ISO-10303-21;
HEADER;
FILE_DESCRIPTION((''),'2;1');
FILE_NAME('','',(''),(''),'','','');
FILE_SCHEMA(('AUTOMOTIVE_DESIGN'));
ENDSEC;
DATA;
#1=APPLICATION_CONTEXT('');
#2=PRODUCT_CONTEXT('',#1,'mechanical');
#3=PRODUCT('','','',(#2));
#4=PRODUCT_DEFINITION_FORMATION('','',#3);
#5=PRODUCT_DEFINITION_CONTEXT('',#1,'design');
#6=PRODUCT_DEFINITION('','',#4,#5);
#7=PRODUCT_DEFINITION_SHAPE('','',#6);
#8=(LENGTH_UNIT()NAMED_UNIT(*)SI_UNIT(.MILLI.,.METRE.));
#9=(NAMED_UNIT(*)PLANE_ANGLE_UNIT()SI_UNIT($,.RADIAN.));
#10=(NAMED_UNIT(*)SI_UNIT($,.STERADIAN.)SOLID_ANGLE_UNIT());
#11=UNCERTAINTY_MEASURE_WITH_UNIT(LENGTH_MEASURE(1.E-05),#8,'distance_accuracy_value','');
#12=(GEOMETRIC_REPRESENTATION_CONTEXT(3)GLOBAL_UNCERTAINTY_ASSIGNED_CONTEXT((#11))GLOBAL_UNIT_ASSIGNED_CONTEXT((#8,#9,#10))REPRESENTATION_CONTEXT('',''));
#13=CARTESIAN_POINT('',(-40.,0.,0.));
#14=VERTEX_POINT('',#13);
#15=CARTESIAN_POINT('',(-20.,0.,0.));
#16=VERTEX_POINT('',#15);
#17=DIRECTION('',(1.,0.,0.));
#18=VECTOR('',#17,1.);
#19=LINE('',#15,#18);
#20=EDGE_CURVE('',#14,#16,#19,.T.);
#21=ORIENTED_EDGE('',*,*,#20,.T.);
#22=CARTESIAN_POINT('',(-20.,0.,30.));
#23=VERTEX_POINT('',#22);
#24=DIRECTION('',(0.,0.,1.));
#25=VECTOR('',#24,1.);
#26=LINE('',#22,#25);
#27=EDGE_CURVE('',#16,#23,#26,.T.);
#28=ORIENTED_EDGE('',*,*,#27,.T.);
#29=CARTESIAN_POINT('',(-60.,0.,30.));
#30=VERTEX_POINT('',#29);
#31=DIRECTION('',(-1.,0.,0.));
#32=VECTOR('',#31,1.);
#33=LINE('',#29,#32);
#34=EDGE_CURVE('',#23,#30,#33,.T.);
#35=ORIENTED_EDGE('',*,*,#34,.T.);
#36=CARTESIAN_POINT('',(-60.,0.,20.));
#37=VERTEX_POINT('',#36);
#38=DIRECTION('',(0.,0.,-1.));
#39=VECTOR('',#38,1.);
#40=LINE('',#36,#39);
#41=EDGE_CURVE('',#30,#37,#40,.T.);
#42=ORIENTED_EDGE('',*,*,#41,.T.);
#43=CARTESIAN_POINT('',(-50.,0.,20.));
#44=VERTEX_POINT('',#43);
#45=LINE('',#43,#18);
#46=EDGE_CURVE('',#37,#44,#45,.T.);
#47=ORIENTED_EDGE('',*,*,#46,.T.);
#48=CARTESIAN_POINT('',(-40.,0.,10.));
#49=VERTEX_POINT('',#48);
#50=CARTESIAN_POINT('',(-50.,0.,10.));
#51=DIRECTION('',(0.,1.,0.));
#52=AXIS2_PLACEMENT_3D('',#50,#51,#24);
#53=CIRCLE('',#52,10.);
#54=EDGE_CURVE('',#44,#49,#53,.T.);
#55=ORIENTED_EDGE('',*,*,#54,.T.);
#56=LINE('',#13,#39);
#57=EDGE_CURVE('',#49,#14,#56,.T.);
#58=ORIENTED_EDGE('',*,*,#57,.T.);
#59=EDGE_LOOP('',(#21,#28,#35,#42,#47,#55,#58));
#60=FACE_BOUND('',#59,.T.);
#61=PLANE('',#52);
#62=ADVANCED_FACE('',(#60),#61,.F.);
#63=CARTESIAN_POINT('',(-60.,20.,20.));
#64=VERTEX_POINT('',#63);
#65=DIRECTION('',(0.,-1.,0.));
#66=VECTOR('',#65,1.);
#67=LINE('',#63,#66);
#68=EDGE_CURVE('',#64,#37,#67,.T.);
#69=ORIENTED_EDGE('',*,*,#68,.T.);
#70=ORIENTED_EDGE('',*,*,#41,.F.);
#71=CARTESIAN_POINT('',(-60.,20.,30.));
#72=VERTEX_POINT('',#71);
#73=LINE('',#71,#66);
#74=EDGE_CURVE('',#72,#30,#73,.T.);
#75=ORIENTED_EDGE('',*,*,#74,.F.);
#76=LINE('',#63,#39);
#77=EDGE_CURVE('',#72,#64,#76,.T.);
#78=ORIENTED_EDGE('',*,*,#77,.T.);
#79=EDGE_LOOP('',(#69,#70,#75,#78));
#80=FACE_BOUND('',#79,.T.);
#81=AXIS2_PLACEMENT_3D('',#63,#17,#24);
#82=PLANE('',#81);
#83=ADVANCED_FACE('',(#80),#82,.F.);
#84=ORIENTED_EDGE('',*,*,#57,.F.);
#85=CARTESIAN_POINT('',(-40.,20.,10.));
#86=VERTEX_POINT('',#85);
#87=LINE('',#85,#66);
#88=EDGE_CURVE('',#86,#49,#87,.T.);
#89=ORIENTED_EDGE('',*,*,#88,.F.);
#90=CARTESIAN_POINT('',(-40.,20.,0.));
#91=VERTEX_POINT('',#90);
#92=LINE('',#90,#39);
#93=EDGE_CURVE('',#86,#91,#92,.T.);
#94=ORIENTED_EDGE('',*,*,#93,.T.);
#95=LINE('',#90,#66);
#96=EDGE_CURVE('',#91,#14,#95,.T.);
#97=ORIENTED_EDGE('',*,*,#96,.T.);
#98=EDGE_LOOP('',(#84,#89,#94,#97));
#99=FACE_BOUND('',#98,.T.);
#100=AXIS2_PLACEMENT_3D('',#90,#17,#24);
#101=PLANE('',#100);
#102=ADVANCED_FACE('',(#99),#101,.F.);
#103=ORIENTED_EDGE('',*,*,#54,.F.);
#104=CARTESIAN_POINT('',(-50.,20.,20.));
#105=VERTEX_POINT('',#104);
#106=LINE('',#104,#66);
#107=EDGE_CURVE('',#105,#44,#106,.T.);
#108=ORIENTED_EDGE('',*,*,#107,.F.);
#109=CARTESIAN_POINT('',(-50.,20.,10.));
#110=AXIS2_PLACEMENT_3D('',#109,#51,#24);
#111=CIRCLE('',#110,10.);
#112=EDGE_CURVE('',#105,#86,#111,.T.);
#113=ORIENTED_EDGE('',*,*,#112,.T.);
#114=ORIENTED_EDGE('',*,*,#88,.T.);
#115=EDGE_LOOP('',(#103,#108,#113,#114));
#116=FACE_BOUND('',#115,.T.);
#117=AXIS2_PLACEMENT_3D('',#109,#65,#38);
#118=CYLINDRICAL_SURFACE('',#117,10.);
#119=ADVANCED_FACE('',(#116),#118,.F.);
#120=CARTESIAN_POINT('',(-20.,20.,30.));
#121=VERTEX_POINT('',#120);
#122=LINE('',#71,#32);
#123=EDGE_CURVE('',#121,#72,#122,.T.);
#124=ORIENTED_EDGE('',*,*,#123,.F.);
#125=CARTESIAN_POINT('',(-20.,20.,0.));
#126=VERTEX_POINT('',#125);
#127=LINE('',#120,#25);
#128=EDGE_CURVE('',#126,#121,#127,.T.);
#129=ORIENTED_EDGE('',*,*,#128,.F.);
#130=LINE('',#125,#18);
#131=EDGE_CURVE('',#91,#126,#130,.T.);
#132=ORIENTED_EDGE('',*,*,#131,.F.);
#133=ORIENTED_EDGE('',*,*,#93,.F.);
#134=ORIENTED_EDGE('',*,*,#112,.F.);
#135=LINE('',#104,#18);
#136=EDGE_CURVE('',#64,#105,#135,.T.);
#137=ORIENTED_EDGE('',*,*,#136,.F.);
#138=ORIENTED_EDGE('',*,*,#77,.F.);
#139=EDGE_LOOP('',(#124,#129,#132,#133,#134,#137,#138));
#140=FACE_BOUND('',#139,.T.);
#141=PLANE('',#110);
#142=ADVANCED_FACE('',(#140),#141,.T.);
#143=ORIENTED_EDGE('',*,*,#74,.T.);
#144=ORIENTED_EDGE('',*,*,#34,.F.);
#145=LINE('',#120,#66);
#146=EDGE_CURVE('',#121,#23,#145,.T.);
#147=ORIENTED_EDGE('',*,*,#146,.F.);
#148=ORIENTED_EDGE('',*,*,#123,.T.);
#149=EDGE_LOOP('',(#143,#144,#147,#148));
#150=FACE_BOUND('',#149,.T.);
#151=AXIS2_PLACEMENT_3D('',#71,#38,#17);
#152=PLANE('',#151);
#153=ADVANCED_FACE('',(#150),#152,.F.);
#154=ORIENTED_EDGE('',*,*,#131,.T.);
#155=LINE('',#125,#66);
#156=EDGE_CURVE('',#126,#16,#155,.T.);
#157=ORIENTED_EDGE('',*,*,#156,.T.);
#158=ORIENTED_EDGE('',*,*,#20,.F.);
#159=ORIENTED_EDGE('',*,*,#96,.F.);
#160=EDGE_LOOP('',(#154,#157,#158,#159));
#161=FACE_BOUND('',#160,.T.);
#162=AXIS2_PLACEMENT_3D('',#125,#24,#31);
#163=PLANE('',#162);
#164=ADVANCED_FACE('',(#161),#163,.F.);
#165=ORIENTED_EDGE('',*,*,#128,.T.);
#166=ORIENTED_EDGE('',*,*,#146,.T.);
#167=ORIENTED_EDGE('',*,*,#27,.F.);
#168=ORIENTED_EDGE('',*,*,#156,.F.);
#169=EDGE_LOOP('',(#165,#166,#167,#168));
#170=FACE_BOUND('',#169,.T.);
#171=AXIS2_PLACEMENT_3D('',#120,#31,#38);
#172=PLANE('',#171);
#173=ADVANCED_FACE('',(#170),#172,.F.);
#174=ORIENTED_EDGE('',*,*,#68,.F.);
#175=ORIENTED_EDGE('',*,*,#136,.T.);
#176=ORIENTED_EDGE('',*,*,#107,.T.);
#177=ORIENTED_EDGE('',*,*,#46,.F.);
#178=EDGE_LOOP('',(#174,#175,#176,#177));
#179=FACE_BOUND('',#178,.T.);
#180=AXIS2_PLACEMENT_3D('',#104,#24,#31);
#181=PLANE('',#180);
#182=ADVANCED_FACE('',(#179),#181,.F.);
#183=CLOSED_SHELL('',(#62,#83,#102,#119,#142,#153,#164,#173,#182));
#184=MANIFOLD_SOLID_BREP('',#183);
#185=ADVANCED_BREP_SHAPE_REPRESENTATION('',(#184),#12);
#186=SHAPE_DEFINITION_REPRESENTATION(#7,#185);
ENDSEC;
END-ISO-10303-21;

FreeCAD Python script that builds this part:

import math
import FreeCAD as App
import Part
import Sketcher
from FreeCAD import Vector

doc = App.newDocument("Part")
body = doc.addObject("PartDesign::Body", "Body")

sketch1 = body.newObject("Sketcher::SketchObject", "Sketch")
sketch1.AttachmentSupport = (doc.getObject("XZ_Plane"), [""])
sketch1.MapMode = "FlatFace"
sketch1.addGeometry([
    Part.LineSegment(Vector(0, 10, 0), Vector(0, 0, 0)),
    Part.LineSegment(Vector(0, 0, 0), Vector(-20, 0, 0)),
    Part.LineSegment(Vector(-20, 0, 0), Vector(-20, 30, 0)),
    Part.LineSegment(Vector(-20, 30, 0), Vector(20, 30, 0)),
    Part.LineSegment(Vector(20, 30, 0), Vector(20, 20, 0)),
    Part.LineSegment(Vector(20, 20, 0), Vector(10, 20, 0)),
    Part.ArcOfCircle(Part.Circle(Vector(10, 10, 0), Vector(0, 0, 1), 10), math.radians(90), math.radians(180)),
], False)
sketch1.addConstraint([
    Sketcher.Constraint("Coincident", 0, 2, 1, 1),
    Sketcher.Constraint("Coincident", 1, 2, 2, 1),
    Sketcher.Constraint("Coincident", 2, 2, 3, 1),
    Sketcher.Constraint("Coincident", 3, 2, 4, 1),
    Sketcher.Constraint("Coincident", 4, 2, 5, 1),
    Sketcher.Constraint("Tangent", 5, 2, 6, 1),
    Sketcher.Constraint("Tangent", 6, 2, 0, 1),
    Sketcher.Constraint("Vertical", 0),
    Sketcher.Constraint("Horizontal", 1),
    Sketcher.Constraint("Vertical", 2),
    Sketcher.Constraint("Horizontal", 3),
    Sketcher.Constraint("Vertical", 4),
    Sketcher.Constraint("Horizontal", 5),
    Sketcher.Constraint("Coincident", 0, 2, -1, 1),
    Sketcher.Constraint("Equal", 5, 0),
    Sketcher.Constraint("Equal", 0, 4),
    Sketcher.Constraint("Radius", 6, 10.0),
    Sketcher.Constraint("DistanceX", 1, 2, 1, 1, 20.0),
    Sketcher.Constraint("DistanceX", 3, 1, 3, 2, 40.0),
])
pad1 = body.newObject("PartDesign::Pad", "Pad")
pad1.Profile = sketch1
pad1.Length = 20
pad1.Reversed = True
body2 = doc.addObject("PartDesign::Body", "Body001")
doc.recompute()

mirroring = doc.addObject("Part::Mirroring", "Mirroring")
mirroring.Source = body
mirroring.Base = Vector(-20, 20, 30)
mirroring.Normal = Vector(1, 0, 0)
body2.BaseFeature = mirroring
doc.recompute()
body.Visibility = False
mirroring.Visibility = False

doc.recompute()
